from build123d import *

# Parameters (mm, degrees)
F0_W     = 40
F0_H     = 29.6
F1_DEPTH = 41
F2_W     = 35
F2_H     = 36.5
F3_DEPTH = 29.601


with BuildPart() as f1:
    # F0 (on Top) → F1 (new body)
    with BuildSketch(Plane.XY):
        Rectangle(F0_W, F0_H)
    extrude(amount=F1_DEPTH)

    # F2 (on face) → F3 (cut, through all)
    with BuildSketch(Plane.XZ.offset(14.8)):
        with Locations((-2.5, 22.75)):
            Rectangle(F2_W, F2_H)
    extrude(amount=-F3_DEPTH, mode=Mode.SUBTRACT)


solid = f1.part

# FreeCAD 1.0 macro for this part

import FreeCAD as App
import Part
import Sketcher

V = App.Vector


def add_polygon(sketch, points):
    """Adds a closed chain of lines whose ends are joined by coincident constraints."""
    first, n = sketch.GeometryCount, len(points)
    for a, b in zip(points, points[1:] + points[:1]):
        sketch.addGeometry(Part.LineSegment(App.Vector(*a, 0), App.Vector(*b, 0)), False)
    for i in range(n):
        sketch.addConstraint(Sketcher.Constraint("Coincident", first + i, 2, first + (i + 1) % n, 1))

doc = App.newDocument("Part")
body = doc.addObject("PartDesign::Body", "Body")

# Sketch on XY plane
sketch1 = body.newObject("Sketcher::SketchObject", "Sketch")
sketch1.AttachmentSupport = (doc.getObject("XY_Plane"), [""])
sketch1.MapMode = "FlatFace"
add_polygon(sketch1, [(-20, 14.8), (-20, -14.8), (20, -14.8), (20, 14.8)])  # lines 0-3
sketch1.addConstraint(Sketcher.Constraint("Vertical", 0))
sketch1.addConstraint(Sketcher.Constraint("Horizontal", 1))
sketch1.addConstraint(Sketcher.Constraint("Vertical", 2))
sketch1.addConstraint(Sketcher.Constraint("Horizontal", 3))
sketch1.addConstraint(Sketcher.Constraint("Symmetric", 0, 2, 2, 2, -1, 1))
sketch1.addConstraint(Sketcher.Constraint("DistanceX", 1, 1, 1, 2, 40.0))
sketch1.addConstraint(Sketcher.Constraint("DistanceY", 0, 2, 0, 1, 29.6))
pad1 = body.newObject("PartDesign::Pad", "Pad")
pad1.Profile = sketch1
pad1.Length = 41

# Sketch on XZ plane
sketch2 = body.newObject("Sketcher::SketchObject", "Sketch001")
sketch2.AttachmentSupport = (doc.getObject("XZ_Plane"), [""])
sketch2.MapMode = "FlatFace"
sketch2.AttachmentOffset = App.Placement(V(0, 0, 14.8), App.Rotation())
add_polygon(sketch2, [(-20, 41), (-20, 4.5), (15, 4.5), (15, 41)])  # lines 0-3
sketch2.addConstraint(Sketcher.Constraint("Vertical", 0))
sketch2.addConstraint(Sketcher.Constraint("Horizontal", 1))
sketch2.addConstraint(Sketcher.Constraint("Vertical", 2))
sketch2.addConstraint(Sketcher.Constraint("Horizontal", 3))
sketch2.addConstraint(Sketcher.Constraint("DistanceX", 1, 1, 1, 2, 35.0))
sketch2.addConstraint(Sketcher.Constraint("DistanceY", 0, 2, 0, 1, 36.5))
sketch2.addConstraint(Sketcher.Constraint("DistanceX", 0, 2, -1, 1, 20.0))
sketch2.addConstraint(Sketcher.Constraint("DistanceY", -1, 1, 2, 2, 41.0))
pocket1 = body.newObject("PartDesign::Pocket", "Pocket")
pocket1.Profile = sketch2
pocket1.Type = "ThroughAll"

doc.recompute()
